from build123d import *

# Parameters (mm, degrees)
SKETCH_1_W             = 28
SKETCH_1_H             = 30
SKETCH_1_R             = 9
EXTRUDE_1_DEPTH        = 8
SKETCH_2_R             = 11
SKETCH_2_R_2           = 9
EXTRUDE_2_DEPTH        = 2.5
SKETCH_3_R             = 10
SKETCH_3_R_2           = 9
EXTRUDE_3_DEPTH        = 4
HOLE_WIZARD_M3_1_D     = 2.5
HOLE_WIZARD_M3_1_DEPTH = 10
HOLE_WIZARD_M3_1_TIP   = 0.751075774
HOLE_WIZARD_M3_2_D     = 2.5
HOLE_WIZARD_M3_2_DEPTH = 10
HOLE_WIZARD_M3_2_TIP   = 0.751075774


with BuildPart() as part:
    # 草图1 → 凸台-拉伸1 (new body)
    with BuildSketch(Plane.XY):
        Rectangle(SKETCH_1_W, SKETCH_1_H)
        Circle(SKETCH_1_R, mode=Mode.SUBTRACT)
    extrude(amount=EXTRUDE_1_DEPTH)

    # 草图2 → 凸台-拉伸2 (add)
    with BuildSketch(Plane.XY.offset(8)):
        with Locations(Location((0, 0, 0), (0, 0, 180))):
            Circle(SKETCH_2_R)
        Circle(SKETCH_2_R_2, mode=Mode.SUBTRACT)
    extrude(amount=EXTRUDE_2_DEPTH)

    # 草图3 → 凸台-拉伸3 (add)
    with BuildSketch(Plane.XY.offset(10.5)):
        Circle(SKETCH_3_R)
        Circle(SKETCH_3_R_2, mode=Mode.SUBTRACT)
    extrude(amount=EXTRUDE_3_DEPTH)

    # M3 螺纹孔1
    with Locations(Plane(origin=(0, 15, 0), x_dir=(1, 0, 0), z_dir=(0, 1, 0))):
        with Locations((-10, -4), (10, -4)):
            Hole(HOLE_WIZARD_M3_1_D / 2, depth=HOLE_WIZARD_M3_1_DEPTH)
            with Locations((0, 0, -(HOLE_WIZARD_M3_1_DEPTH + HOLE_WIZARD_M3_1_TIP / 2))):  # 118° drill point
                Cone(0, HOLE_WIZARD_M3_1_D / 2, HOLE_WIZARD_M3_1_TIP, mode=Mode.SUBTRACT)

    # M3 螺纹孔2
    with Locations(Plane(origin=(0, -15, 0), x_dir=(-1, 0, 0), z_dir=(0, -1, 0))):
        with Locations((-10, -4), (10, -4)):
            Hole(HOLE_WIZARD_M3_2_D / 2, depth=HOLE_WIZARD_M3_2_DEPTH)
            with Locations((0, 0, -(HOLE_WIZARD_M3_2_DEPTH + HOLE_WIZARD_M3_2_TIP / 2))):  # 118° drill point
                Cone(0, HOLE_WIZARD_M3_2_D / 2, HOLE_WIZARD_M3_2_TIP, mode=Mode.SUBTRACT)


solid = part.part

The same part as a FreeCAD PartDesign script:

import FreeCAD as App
import Part
import Sketcher
Q = App.Units.Quantity

doc = App.newDocument("Part")
body = doc.addObject("PartDesign::Body", "Body")

# Sketch on XY plane
sketch1 = body.newObject("Sketcher::SketchObject", "Sketch")
sketch1.AttachmentSupport = (doc.getObject("XY_Plane"), [""])
sketch1.MapMode = "FlatFace"
sketch1.addGeometry([
    Part.LineSegment(App.Vector(-14, 15, 0), App.Vector(-14, -15, 0)),  # 0
    Part.LineSegment(App.Vector(-14, -15, 0), App.Vector(14, -15, 0)),  # 1
    Part.LineSegment(App.Vector(14, -15, 0), App.Vector(14, 15, 0)),  # 2
    Part.LineSegment(App.Vector(14, 15, 0), App.Vector(-14, 15, 0)),  # 3
    Part.Circle(App.Vector(0, 0, 0), App.Vector(0, 0, 1), 9),  # 4
], False)
sketch1.addConstraint([
    Sketcher.Constraint("Coincident", 0, 2, 1, 1),
    Sketcher.Constraint("Coincident", 1, 2, 2, 1),
    Sketcher.Constraint("Coincident", 2, 2, 3, 1),
    Sketcher.Constraint("Coincident", 3, 2, 0, 1),
    Sketcher.Constraint("Vertical", 0),
    Sketcher.Constraint("Horizontal", 1),
    Sketcher.Constraint("Vertical", 2),
    Sketcher.Constraint("Horizontal", 3),
    Sketcher.Constraint("Coincident", 4, 3, -1, 1),
    Sketcher.Constraint("Symmetric", 0, 2, 2, 2, -1, 1),
    Sketcher.Constraint("Diameter", 4, Q("18 mm")),
    Sketcher.Constraint("DistanceX", 1, 1, 1, 2, Q("28 mm")),
    Sketcher.Constraint("DistanceY", 0, 2, 0, 1, Q("30 mm")),
])
pad1 = body.newObject("PartDesign::Pad", "Pad")
pad1.Profile = sketch1
pad1.Length = 8

# Sketch on XY plane
sketch2 = body.newObject("Sketcher::SketchObject", "Sketch001")
sketch2.AttachmentSupport = (doc.getObject("XY_Plane"), [""])
sketch2.MapMode = "FlatFace"
sketch2.AttachmentOffset = App.Placement(App.Vector(0, 0, 8), App.Rotation())
sketch2.addGeometry([
    Part.Circle(App.Vector(0, 0, 0), App.Vector(0, 0, 1), 11),
    Part.Circle(App.Vector(0, 0, 0), App.Vector(0, 0, 1), 9),
], False)
sketch2.addConstraint([
    Sketcher.Constraint("Coincident", 0, 3, -1, 1),
    Sketcher.Constraint("Coincident", 1, 3, -1, 1),
    Sketcher.Constraint("Diameter", 0, Q("22 mm")),
    Sketcher.Constraint("Diameter", 1, Q("18 mm")),
])
pad2 = body.newObject("PartDesign::Pad", "Pad001")
pad2.Profile = sketch2
pad2.Length = 2.5

# Sketch on XY plane
sketch3 = body.newObject("Sketcher::SketchObject", "Sketch002")
sketch3.AttachmentSupport = (doc.getObject("XY_Plane"), [""])
sketch3.MapMode = "FlatFace"
sketch3.AttachmentOffset = App.Placement(App.Vector(0, 0, 10.5), App.Rotation())
sketch3.addGeometry([
    Part.Circle(App.Vector(0, 0, 0), App.Vector(0, 0, 1), 10),
    Part.Circle(App.Vector(0, 0, 0), App.Vector(0, 0, 1), 9),
], False)
sketch3.addConstraint([
    Sketcher.Constraint("Coincident", 0, 3, -1, 1),
    Sketcher.Constraint("Coincident", 1, 3, -1, 1),
    Sketcher.Constraint("Diameter", 0, Q("20 mm")),
    Sketcher.Constraint("Diameter", 1, Q("18 mm")),
])
pad3 = body.newObject("PartDesign::Pad", "Pad002")
pad3.Profile = sketch3
pad3.Length = 4

# Sketch on XZ plane
sketch4 = body.newObject("Sketcher::SketchObject", "Sketch003")
sketch4.AttachmentSupport = (doc.getObject("XZ_Plane"), [""])
sketch4.MapMode = "FlatFace"
sketch4.AttachmentOffset = App.Placement(App.Vector(0, 0, -15), App.Rotation())
sketch4.addGeometry([
    Part.Circle(App.Vector(-10, 4, 0), App.Vector(0, 0, 1), 1.2),
    Part.Circle(App.Vector(10, 4, 0), App.Vector(0, 0, 1), 1.2),
], False)
sketch4.addConstraint([
    Sketcher.Constraint("Equal", 0, 1),
    Sketcher.Constraint("Symmetric", 0, 3, 1, 3, -2),
    Sketcher.Constraint("Diameter", 0, Q("2.5 mm")),
    Sketcher.Constraint("DistanceX", 0, 3, -1, 1, Q("10 mm")),
    Sketcher.Constraint("DistanceY", -1, 1, 0, 3, Q("4 mm")),
])
doc.recompute()
hole = body.newObject("PartDesign::Hole", "Hole")
hole.Profile = sketch4
hole.ThreadType = "None"
hole.Diameter = 2.5
hole.DepthType = "Dimension"
hole.Depth = 10
hole.DrillPoint = "Angled"
hole.DrillPointAngle = 118
hole.Reversed = True

# Sketch on XZ plane
sketch5 = body.newObject("Sketcher::SketchObject", "Sketch004")
sketch5.AttachmentSupport = (doc.getObject("XZ_Plane"), [""])
sketch5.MapMode = "FlatFace"
sketch5.AttachmentOffset = App.Placement(App.Vector(0, 0, 15), App.Rotation())
sketch5.addGeometry([
    Part.Circle(App.Vector(10, 4, 0), App.Vector(0, 0, 1), 1.2),
    Part.Circle(App.Vector(-10, 4, 0), App.Vector(0, 0, 1), 1.2),
], False)
sketch5.addConstraint([
    Sketcher.Constraint("Equal", 0, 1),
    Sketcher.Constraint("Symmetric", 0, 3, 1, 3, -2),
    Sketcher.Constraint("Diameter", 0, Q("2.5 mm")),
    Sketcher.Constraint("DistanceX", -1, 1, 0, 3, Q("10 mm")),
    Sketcher.Constraint("DistanceY", -1, 1, 0, 3, Q("4 mm")),
])
doc.recompute()
hole2 = body.newObject("PartDesign::Hole", "Hole001")
hole2.Profile = sketch5
hole2.ThreadType = "None"
hole2.Diameter = 2.5
hole2.DepthType = "Dimension"
hole2.Depth = 10
hole2.DrillPoint = "Angled"
hole2.DrillPointAngle = 118

doc.recompute()
